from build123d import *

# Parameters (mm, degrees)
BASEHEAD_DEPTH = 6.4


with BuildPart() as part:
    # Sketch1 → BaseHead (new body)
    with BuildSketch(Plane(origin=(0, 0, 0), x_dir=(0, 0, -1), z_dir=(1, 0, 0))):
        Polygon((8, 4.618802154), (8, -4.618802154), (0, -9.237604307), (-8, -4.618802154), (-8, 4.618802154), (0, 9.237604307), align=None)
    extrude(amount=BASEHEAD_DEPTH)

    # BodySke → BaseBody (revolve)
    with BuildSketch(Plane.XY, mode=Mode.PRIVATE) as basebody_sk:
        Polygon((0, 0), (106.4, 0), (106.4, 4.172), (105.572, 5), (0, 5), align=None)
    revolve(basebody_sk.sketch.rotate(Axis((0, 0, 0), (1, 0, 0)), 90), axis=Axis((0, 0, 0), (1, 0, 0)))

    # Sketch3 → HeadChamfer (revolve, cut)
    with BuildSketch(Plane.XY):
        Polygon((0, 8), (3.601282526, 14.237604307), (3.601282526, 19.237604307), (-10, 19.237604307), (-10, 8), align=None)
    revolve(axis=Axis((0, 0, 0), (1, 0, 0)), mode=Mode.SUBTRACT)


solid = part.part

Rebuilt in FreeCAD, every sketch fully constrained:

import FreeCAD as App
import Part
import Sketcher
from FreeCAD import Vector
Q = App.Units.Quantity

doc = App.newDocument("Part")
body = doc.addObject("PartDesign::Body", "Body")

sketch1 = body.newObject("Sketcher::SketchObject", "Sketch")
sketch1.AttachmentSupport = (doc.getObject("YZ_Plane"), [""])
sketch1.MapMode = "FlatFace"
sketch1.addGeometry(Part.LineSegment(Vector(-5, -8, 0), Vector(5, -8, 0)), False)
sketch1.addGeometry(Part.LineSegment(Vector(5, -8, 0), Vector(9, 0, 0)), False)
sketch1.addGeometry(Part.LineSegment(Vector(9, 0, 0), Vector(5, 8, 0)), False)
sketch1.addGeometry(Part.LineSegment(Vector(5, 8, 0), Vector(-5, 8, 0)), False)
sketch1.addGeometry(Part.LineSegment(Vector(-5, 8, 0), Vector(-9, 0, 0)), False)
sketch1.addGeometry(Part.LineSegment(Vector(-9, 0, 0), Vector(-5, -8, 0)), False)
sketch1.addConstraint(Sketcher.Constraint("Coincident", 0, 2, 1, 1))
sketch1.addConstraint(Sketcher.Constraint("Coincident", 1, 2, 2, 1))
sketch1.addConstraint(Sketcher.Constraint("Coincident", 2, 2, 3, 1))
sketch1.addConstraint(Sketcher.Constraint("Coincident", 3, 2, 4, 1))
sketch1.addConstraint(Sketcher.Constraint("Coincident", 4, 2, 5, 1))
sketch1.addConstraint(Sketcher.Constraint("Coincident", 5, 2, 0, 1))
sketch1.addConstraint(Sketcher.Constraint("Horizontal", 0))
sketch1.addConstraint(Sketcher.Constraint("Horizontal", 3))
sketch1.addConstraint(Sketcher.Constraint("Symmetric", 0, 2, 3, 2, -1, 1))
sketch1.addConstraint(Sketcher.Constraint("Symmetric", 1, 2, 4, 2, -1, 1))
sketch1.addConstraint(Sketcher.Constraint("PointOnObject", 1, 2, -1))
sketch1.addConstraint(Sketcher.Constraint("Parallel", 2, 5))
sketch1.addConstraint(Sketcher.Constraint("Vertical", 0, 2, 2, 2))
sketch1.addConstraint(Sketcher.Constraint("Angle", 1, Q("60 deg")))
sketch1.addConstraint(Sketcher.Constraint("DistanceY", 0, 2, -1, 1, Q("8 mm")))
sketch1.addConstraint(Sketcher.Constraint("DistanceX", 0, 1, 0, 2, Q("9.237604 mm")))
pad1 = body.newObject("PartDesign::Pad", "Pad")
pad1.Profile = sketch1
pad1.Length = 6.4

sketch2 = body.newObject("Sketcher::SketchObject", "Sketch001")
sketch2.AttachmentSupport = (doc.getObject("XY_Plane"), [""])
sketch2.MapMode = "FlatFace"
sketch2.addGeometry(Part.LineSegment(Vector(0, 0, 0), Vector(106.4, 0, 0)), False)
sketch2.addGeometry(Part.LineSegment(Vector(106.4, 0, 0), Vector(106.4, 4.2, 0)), False)
sketch2.addGeometry(Part.LineSegment(Vector(106.4, 4.2, 0), Vector(105.6, 5, 0)), False)
sketch2.addGeometry(Part.LineSegment(Vector(105.6, 5, 0), Vector(0, 5, 0)), False)
sketch2.addGeometry(Part.LineSegment(Vector(0, 5, 0), Vector(0, 0, 0)), False)
sketch2.addConstraint(Sketcher.Constraint("Coincident", 0, 2, 1, 1))
sketch2.addConstraint(Sketcher.Constraint("Coincident", 1, 2, 2, 1))
sketch2.addConstraint(Sketcher.Constraint("Coincident", 2, 2, 3, 1))
sketch2.addConstraint(Sketcher.Constraint("Coincident", 3, 2, 4, 1))
sketch2.addConstraint(Sketcher.Constraint("Coincident", 4, 2, 0, 1))
sketch2.addConstraint(Sketcher.Constraint("Horizontal", 0))
sketch2.addConstraint(Sketcher.Constraint("Vertical", 1))
sketch2.addConstraint(Sketcher.Constraint("Horizontal", 3))
sketch2.addConstraint(Sketcher.Constraint("Vertical", 4))
sketch2.addConstraint(Sketcher.Constraint("Coincident", 4, 2, -1, 1))
sketch2.addConstraint(Sketcher.Constraint("DistanceY", 4, 2, 4, 1, Q("5 mm")))
sketch2.addConstraint(Sketcher.Constraint("Angle", 2, Q("135 deg")))
sketch2.addConstraint(Sketcher.Constraint("DistanceX", 0, 1, 0, 2, Q("106.4 mm")))
sketch2.addConstraint(Sketcher.Constraint("DistanceX", 3, 2, 3, 1, Q("105.572 mm")))
revolution = body.newObject("PartDesign::Revolution", "Revolution")
revolution.Profile = sketch2
revolution.ReferenceAxis = (sketch2, ["H_Axis"])
revolution.Angle = 360

sketch3 = body.newObject("Sketcher::SketchObject", "Sketch002")
sketch3.AttachmentSupport = (doc.getObject("XY_Plane"), [""])
sketch3.MapMode = "FlatFace"
sketch3.addGeometry(Part.LineSegment(Vector(0, 8, 0), Vector(4, 14, 0)), False)
sketch3.addGeometry(Part.LineSegment(Vector(4, 14, 0), Vector(4, 19, 0)), False)
sketch3.addGeometry(Part.LineSegment(Vector(4, 19, 0), Vector(-10, 19, 0)), False)
sketch3.addGeometry(Part.LineSegment(Vector(-10, 19, 0), Vector(-10, 8, 0)), False)
sketch3.addGeometry(Part.LineSegment(Vector(-10, 8, 0), Vector(0, 8, 0)), False)
sketch3.addConstraint(Sketcher.Constraint("Coincident", 0, 2, 1, 1))
sketch3.addConstraint(Sketcher.Constraint("Coincident", 1, 2, 2, 1))
sketch3.addConstraint(Sketcher.Constraint("Coincident", 2, 2, 3, 1))
sketch3.addConstraint(Sketcher.Constraint("Coincident", 3, 2, 4, 1))
sketch3.addConstraint(Sketcher.Constraint("Coincident", 4, 2, 0, 1))
sketch3.addConstraint(Sketcher.Constraint("Vertical", 1))
sketch3.addConstraint(Sketcher.Constraint("Horizontal", 2))
sketch3.addConstraint(Sketcher.Constraint("Vertical", 3))
sketch3.addConstraint(Sketcher.Constraint("Horizontal", 4))
sketch3.addConstraint(Sketcher.Constraint("PointOnObject", 4, 2, -2))
sketch3.addConstraint(Sketcher.Constraint("DistanceX", 4, 1, 4, 2, Q("10 mm")))
sketch3.addConstraint(Sketcher.Constraint("DistanceY", 1, 1, 1, 2, Q("5 mm")))
sketch3.addConstraint(Sketcher.Constraint("Angle", 0, Q("60 deg")))
sketch3.addConstraint(Sketcher.Constraint("DistanceY", -1, 1, 3, 2, Q("8 mm")))
sketch3.addConstraint(Sketcher.Constraint("DistanceX", 2, 2, 2, 1, Q("13.601283 mm")))
groove = body.newObject("PartDesign::Groove", "Groove")
groove.Profile = sketch3
groove.ReferenceAxis = (sketch3, ["H_Axis"])
groove.Angle = 360

doc.recompute()
